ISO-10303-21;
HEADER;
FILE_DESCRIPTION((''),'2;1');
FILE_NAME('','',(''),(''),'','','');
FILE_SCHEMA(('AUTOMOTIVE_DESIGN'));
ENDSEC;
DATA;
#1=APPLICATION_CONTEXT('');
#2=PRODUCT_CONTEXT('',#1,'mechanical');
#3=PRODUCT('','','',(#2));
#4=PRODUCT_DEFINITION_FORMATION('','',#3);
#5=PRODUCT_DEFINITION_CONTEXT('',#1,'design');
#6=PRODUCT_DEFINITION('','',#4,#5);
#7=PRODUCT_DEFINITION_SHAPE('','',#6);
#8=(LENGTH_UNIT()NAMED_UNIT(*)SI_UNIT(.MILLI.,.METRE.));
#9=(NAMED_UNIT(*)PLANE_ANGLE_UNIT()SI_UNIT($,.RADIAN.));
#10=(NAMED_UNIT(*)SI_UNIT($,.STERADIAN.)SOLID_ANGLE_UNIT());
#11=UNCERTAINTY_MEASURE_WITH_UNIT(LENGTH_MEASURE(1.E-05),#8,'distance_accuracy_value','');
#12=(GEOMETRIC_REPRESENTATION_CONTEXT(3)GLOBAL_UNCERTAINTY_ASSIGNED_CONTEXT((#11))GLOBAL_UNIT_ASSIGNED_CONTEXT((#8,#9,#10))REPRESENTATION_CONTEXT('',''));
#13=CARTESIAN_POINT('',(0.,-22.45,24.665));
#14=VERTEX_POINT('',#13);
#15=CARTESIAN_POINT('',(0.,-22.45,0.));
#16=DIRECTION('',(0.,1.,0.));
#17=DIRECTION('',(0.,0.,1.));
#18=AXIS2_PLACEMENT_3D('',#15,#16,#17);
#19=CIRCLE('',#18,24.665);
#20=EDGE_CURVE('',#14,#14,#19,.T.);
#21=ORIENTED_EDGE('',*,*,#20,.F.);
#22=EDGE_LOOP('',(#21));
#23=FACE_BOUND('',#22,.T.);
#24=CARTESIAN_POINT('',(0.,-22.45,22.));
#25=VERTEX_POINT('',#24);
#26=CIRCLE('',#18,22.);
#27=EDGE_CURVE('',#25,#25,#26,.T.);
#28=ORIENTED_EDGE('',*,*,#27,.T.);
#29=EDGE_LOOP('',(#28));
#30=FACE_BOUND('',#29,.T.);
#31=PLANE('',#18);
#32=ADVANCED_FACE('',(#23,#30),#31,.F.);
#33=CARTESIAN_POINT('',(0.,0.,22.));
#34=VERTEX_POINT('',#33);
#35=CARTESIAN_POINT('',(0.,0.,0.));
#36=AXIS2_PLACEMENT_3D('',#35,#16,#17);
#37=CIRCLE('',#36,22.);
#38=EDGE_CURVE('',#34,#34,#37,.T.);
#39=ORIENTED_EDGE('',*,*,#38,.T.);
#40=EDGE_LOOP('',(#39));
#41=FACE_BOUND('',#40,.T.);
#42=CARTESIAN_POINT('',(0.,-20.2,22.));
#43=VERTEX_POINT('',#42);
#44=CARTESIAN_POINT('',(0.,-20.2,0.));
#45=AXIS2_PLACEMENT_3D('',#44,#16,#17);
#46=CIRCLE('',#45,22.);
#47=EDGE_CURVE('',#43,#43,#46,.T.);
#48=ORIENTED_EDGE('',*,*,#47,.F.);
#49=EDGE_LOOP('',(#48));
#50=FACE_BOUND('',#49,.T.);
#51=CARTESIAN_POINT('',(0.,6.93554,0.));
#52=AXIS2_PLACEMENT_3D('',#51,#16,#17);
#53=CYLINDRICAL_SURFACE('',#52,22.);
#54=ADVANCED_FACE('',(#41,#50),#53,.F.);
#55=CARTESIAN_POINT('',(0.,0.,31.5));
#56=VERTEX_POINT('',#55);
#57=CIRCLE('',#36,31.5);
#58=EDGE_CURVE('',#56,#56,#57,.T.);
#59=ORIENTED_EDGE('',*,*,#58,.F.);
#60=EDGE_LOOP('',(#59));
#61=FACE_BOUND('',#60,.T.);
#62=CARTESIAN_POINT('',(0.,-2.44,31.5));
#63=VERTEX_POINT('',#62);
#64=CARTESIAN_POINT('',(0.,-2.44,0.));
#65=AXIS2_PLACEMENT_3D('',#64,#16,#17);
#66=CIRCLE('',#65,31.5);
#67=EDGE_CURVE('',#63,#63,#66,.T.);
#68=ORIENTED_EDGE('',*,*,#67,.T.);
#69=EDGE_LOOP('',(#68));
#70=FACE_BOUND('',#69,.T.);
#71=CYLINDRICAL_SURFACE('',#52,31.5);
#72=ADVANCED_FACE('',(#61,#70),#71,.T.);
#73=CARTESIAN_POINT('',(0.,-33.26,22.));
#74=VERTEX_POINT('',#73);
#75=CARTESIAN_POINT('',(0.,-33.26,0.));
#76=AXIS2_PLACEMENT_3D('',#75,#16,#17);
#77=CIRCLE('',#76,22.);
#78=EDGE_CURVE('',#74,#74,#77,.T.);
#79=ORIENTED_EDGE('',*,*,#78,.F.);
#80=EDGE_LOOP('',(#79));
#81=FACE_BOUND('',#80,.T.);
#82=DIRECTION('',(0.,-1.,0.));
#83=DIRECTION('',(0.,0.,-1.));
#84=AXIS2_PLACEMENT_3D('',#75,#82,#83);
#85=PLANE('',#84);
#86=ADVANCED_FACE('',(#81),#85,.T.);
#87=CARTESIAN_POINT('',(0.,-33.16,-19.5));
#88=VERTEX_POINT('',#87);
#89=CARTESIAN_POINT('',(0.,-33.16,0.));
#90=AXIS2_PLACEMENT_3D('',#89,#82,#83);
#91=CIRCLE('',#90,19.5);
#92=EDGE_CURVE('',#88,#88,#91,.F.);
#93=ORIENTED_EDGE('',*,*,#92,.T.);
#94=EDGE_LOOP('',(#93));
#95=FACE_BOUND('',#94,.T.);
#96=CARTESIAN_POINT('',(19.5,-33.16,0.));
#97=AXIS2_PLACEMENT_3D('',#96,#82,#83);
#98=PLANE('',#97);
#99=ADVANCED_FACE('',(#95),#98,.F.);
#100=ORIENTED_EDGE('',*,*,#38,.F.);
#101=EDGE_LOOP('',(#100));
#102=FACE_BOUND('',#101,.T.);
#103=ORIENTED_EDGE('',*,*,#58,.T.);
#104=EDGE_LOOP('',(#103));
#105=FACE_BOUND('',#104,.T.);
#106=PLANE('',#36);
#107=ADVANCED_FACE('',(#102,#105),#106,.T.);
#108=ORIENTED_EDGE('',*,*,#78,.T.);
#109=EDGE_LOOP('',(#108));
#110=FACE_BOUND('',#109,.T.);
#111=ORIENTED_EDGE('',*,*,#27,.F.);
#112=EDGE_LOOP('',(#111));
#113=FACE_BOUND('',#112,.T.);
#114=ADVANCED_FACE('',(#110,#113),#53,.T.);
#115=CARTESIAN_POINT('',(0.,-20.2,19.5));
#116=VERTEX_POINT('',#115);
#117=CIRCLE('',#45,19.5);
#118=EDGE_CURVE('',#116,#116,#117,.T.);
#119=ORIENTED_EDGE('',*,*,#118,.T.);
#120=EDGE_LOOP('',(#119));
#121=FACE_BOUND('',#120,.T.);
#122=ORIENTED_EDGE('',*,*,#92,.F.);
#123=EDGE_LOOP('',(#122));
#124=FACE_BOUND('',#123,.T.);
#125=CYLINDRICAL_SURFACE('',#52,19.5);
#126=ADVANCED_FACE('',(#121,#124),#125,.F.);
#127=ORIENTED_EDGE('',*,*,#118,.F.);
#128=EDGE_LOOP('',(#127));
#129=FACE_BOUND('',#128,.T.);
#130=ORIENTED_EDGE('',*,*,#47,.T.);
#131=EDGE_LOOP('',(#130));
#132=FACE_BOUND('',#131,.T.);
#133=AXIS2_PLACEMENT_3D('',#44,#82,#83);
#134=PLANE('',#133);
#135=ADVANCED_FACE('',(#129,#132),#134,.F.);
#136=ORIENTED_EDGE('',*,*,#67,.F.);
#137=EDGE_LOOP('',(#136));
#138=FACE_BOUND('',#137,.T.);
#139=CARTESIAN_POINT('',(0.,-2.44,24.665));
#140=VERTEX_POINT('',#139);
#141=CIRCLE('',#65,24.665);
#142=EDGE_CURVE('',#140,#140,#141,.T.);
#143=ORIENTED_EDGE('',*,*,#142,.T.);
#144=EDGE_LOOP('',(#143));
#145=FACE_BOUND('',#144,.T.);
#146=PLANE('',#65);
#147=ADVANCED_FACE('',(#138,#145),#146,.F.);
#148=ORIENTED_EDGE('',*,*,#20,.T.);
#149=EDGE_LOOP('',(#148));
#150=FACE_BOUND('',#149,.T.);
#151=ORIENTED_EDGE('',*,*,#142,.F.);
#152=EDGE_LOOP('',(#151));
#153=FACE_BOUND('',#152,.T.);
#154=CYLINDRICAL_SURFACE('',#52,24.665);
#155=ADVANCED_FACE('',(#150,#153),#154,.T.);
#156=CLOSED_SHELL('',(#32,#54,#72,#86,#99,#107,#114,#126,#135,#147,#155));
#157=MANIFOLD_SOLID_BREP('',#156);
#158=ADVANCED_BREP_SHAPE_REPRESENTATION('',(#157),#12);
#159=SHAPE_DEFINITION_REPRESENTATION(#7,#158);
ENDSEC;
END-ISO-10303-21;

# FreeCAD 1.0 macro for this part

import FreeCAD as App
import Part
import Sketcher
from FreeCAD import Vector
Q = App.Units.Quantity

doc = App.newDocument("Part")
body = doc.addObject("PartDesign::Body", "Body")

sketch1 = body.newObject("Sketcher::SketchObject", "Sketch")
sketch1.AttachmentSupport = (doc.getObject("XY_Plane"), [""])
sketch1.MapMode = "FlatFace"
sketch1.addGeometry([
    Part.LineSegment(Vector(22, 0, 0), Vector(22, -20.2, 0)),
    Part.LineSegment(Vector(22, -20.2, 0), Vector(19.5, -20.2, 0)),
    Part.LineSegment(Vector(19.5, -20.2, 0), Vector(19.5, -33.16, 0)),
    Part.LineSegment(Vector(19.5, -33.16, 0), Vector(0, -33.16, 0)),
    Part.LineSegment(Vector(0, -33.16, 0), Vector(0, -33.26, 0)),
    Part.LineSegment(Vector(0, -33.26, 0), Vector(22, -33.26, 0)),
    Part.LineSegment(Vector(22, -33.26, 0), Vector(22, -22.45, 0)),
    Part.LineSegment(Vector(22, -22.45, 0), Vector(24.66, -22.45, 0)),
    Part.LineSegment(Vector(24.66, -22.45, 0), Vector(24.66, -2.44, 0)),
    Part.LineSegment(Vector(24.66, -2.44, 0), Vector(31.5, -2.44, 0)),
    Part.LineSegment(Vector(31.5, -2.44, 0), Vector(31.5, 0, 0)),
    Part.LineSegment(Vector(31.5, 0, 0), Vector(22, 0, 0)),
], False)
sketch1.addConstraint([
    Sketcher.Constraint("Coincident", 0, 2, 1, 1),
    Sketcher.Constraint("Coincident", 1, 2, 2, 1),
    Sketcher.Constraint("Coincident", 2, 2, 3, 1),
    Sketcher.Constraint("Coincident", 3, 2, 4, 1),
    Sketcher.Constraint("Coincident", 4, 2, 5, 1),
    Sketcher.Constraint("Coincident", 5, 2, 6, 1),
    Sketcher.Constraint("Coincident", 6, 2, 7, 1),
    Sketcher.Constraint("Coincident", 7, 2, 8, 1),
    Sketcher.Constraint("Coincident", 8, 2, 9, 1),
    Sketcher.Constraint("Coincident", 9, 2, 10, 1),
    Sketcher.Constraint("Coincident", 10, 2, 11, 1),
    Sketcher.Constraint("Coincident", 11, 2, 0, 1),
    Sketcher.Constraint("Vertical", 0),
    Sketcher.Constraint("Horizontal", 1),
    Sketcher.Constraint("Vertical", 2),
    Sketcher.Constraint("Horizontal", 3),
    Sketcher.Constraint("Vertical", 4),
    Sketcher.Constraint("Horizontal", 5),
    Sketcher.Constraint("Vertical", 6),
    Sketcher.Constraint("Horizontal", 7),
    Sketcher.Constraint("Vertical", 8),
    Sketcher.Constraint("Horizontal", 9),
    Sketcher.Constraint("Vertical", 10),
    Sketcher.Constraint("Horizontal", 11),
    Sketcher.Constraint("PointOnObject", 3, 2, -2),
    Sketcher.Constraint("PointOnObject", 10, 2, -1),
    Sketcher.Constraint("Vertical", 0, 2, 5, 2),
    Sketcher.Constraint("DistanceX", 5, 1, 5, 2, Q("22 mm")),
    Sketcher.Constraint("DistanceX", 1, 2, 1, 1, Q("2.5 mm")),
    Sketcher.Constraint("DistanceX", 11, 2, 11, 1, Q("9.5 mm")),
    Sketcher.Constraint("DistanceY", 0, 2, 0, 1, Q("20.2 mm")),
    Sketcher.Constraint("DistanceY", 4, 2, 4, 1, Q("0.1 mm")),
    Sketcher.Constraint("DistanceY", 2, 2, 2, 1, Q("12.96 mm")),
    Sketcher.Constraint("DistanceY", 6, 1, 6, 2, Q("10.81 mm")),
    Sketcher.Constraint("DistanceY", 8, 1, 8, 2, Q("20.01 mm")),
    Sketcher.Constraint("DistanceX", 7, 1, 7, 2, Q("2.665 mm")),
])
revolution = body.newObject("PartDesign::Revolution", "Revolution")
revolution.Profile = sketch1
revolution.ReferenceAxis = (sketch1, ["V_Axis"])
revolution.Angle = 360

doc.recompute()
